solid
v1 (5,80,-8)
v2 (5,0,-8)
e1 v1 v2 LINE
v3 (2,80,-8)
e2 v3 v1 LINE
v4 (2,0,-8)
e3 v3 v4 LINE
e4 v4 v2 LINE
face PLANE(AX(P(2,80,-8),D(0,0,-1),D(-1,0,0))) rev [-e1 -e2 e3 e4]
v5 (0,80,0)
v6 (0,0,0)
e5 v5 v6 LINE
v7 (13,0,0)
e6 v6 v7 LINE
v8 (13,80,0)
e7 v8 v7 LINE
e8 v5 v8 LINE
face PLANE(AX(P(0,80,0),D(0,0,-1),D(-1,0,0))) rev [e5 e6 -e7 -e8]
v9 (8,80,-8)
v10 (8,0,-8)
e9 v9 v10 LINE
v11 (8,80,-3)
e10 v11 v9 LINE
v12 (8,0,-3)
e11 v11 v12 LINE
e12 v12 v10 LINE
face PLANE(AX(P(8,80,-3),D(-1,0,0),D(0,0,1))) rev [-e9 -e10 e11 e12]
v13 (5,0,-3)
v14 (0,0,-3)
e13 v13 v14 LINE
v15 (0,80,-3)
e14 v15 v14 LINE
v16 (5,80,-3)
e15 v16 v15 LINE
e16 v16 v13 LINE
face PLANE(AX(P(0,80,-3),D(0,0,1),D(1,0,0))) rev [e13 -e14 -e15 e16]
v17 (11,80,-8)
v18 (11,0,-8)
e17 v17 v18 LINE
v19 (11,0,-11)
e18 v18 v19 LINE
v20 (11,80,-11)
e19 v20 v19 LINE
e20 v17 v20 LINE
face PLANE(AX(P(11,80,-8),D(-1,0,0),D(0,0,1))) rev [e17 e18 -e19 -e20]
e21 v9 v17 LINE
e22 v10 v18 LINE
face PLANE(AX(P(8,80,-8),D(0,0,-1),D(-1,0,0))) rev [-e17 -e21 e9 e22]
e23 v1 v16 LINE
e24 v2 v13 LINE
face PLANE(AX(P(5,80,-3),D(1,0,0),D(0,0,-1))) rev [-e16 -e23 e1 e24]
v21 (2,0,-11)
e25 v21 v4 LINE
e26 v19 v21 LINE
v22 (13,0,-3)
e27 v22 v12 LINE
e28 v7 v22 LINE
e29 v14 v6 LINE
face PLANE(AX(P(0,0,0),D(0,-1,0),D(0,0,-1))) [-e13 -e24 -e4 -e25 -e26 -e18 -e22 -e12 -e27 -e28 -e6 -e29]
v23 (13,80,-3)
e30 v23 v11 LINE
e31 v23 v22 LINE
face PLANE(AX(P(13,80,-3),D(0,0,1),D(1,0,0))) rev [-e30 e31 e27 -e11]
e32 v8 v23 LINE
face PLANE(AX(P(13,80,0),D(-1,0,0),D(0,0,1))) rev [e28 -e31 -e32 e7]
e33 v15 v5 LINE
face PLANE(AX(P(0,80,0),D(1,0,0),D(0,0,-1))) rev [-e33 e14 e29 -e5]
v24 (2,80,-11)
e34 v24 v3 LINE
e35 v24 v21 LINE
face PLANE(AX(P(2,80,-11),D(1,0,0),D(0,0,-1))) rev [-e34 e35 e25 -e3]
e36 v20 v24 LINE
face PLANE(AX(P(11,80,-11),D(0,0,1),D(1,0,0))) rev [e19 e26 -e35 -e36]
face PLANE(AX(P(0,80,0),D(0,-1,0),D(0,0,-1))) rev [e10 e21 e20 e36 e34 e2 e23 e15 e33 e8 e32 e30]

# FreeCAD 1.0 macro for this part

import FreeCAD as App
import Part
import Sketcher
from FreeCAD import Vector

doc = App.newDocument("Part")
body = doc.addObject("PartDesign::Body", "Body")

sketch1 = body.newObject("Sketcher::SketchObject", "Sketch")
sketch1.AttachmentSupport = (doc.getObject("XZ_Plane"), [""])
sketch1.MapMode = "FlatFace"
sketch1.addGeometry([
    Part.LineSegment(Vector(0, 0, 0), Vector(13, 0, 0)),
    Part.LineSegment(Vector(13, 0, 0), Vector(13, -3, 0)),
    Part.LineSegment(Vector(13, -3, 0), Vector(8, -3, 0)),
    Part.LineSegment(Vector(8, -3, 0), Vector(8, -8, 0)),
    Part.LineSegment(Vector(8, -8, 0), Vector(11, -8, 0)),
    Part.LineSegment(Vector(11, -8, 0), Vector(11, -11, 0)),
    Part.LineSegment(Vector(11, -11, 0), Vector(2, -11, 0)),
    Part.LineSegment(Vector(2, -11, 0), Vector(2, -8, 0)),
    Part.LineSegment(Vector(2, -8, 0), Vector(5, -8, 0)),
    Part.LineSegment(Vector(5, -8, 0), Vector(5, -3, 0)),
    Part.LineSegment(Vector(5, -3, 0), Vector(0, -3, 0)),
    Part.LineSegment(Vector(0, -3, 0), Vector(0, 0, 0)),
], False)
sketch1.addConstraint([
    Sketcher.Constraint("Coincident", 0, 2, 1, 1),
    Sketcher.Constraint("Coincident", 1, 2, 2, 1),
    Sketcher.Constraint("Coincident", 2, 2, 3, 1),
    Sketcher.Constraint("Coincident", 3, 2, 4, 1),
    Sketcher.Constraint("Coincident", 4, 2, 5, 1),
    Sketcher.Constraint("Coincident", 5, 2, 6, 1),
    Sketcher.Constraint("Coincident", 6, 2, 7, 1),
    Sketcher.Constraint("Coincident", 7, 2, 8, 1),
    Sketcher.Constraint("Coincident", 8, 2, 9, 1),
    Sketcher.Constraint("Coincident", 9, 2, 10, 1),
    Sketcher.Constraint("Coincident", 10, 2, 11, 1),
    Sketcher.Constraint("Coincident", 11, 2, 0, 1),
    Sketcher.Constraint("Horizontal", 0),
    Sketcher.Constraint("Vertical", 1),
    Sketcher.Constraint("Horizontal", 2),
    Sketcher.Constraint("Vertical", 3),
    Sketcher.Constraint("Horizontal", 4),
    Sketcher.Constraint("Vertical", 5),
    Sketcher.Constraint("Horizontal", 6),
    Sketcher.Constraint("Vertical", 7),
    Sketcher.Constraint("Horizontal", 8),
    Sketcher.Constraint("Vertical", 9),
    Sketcher.Constraint("Horizontal", 10),
    Sketcher.Constraint("Vertical", 11),
    Sketcher.Constraint("Coincident", 11, 2, -1, 1),
    Sketcher.Constraint("Horizontal", 4, 2, 7, 2),
    Sketcher.Constraint("Horizontal", 2, 2, 9, 2),
    Sketcher.Constraint("Equal", 4, 8),
    Sketcher.Constraint("Equal", 2, 10),
    Sketcher.Constraint("Equal", 8, 1),
    Sketcher.Constraint("Equal", 10, 3),
    Sketcher.Constraint("Equal", 1, 5),
    Sketcher.Constraint("DistanceX", 0, 1, 0, 2, 13.0),
    Sketcher.Constraint("DistanceX", 2, 2, 2, 1, 5.0),
    Sketcher.Constraint("DistanceX", 4, 1, 4, 2, 3.0),
])
pad1 = body.newObject("PartDesign::Pad", "Pad")
pad1.Profile = sketch1
pad1.Length = 80
pad1.Reversed = True

doc.recompute()
